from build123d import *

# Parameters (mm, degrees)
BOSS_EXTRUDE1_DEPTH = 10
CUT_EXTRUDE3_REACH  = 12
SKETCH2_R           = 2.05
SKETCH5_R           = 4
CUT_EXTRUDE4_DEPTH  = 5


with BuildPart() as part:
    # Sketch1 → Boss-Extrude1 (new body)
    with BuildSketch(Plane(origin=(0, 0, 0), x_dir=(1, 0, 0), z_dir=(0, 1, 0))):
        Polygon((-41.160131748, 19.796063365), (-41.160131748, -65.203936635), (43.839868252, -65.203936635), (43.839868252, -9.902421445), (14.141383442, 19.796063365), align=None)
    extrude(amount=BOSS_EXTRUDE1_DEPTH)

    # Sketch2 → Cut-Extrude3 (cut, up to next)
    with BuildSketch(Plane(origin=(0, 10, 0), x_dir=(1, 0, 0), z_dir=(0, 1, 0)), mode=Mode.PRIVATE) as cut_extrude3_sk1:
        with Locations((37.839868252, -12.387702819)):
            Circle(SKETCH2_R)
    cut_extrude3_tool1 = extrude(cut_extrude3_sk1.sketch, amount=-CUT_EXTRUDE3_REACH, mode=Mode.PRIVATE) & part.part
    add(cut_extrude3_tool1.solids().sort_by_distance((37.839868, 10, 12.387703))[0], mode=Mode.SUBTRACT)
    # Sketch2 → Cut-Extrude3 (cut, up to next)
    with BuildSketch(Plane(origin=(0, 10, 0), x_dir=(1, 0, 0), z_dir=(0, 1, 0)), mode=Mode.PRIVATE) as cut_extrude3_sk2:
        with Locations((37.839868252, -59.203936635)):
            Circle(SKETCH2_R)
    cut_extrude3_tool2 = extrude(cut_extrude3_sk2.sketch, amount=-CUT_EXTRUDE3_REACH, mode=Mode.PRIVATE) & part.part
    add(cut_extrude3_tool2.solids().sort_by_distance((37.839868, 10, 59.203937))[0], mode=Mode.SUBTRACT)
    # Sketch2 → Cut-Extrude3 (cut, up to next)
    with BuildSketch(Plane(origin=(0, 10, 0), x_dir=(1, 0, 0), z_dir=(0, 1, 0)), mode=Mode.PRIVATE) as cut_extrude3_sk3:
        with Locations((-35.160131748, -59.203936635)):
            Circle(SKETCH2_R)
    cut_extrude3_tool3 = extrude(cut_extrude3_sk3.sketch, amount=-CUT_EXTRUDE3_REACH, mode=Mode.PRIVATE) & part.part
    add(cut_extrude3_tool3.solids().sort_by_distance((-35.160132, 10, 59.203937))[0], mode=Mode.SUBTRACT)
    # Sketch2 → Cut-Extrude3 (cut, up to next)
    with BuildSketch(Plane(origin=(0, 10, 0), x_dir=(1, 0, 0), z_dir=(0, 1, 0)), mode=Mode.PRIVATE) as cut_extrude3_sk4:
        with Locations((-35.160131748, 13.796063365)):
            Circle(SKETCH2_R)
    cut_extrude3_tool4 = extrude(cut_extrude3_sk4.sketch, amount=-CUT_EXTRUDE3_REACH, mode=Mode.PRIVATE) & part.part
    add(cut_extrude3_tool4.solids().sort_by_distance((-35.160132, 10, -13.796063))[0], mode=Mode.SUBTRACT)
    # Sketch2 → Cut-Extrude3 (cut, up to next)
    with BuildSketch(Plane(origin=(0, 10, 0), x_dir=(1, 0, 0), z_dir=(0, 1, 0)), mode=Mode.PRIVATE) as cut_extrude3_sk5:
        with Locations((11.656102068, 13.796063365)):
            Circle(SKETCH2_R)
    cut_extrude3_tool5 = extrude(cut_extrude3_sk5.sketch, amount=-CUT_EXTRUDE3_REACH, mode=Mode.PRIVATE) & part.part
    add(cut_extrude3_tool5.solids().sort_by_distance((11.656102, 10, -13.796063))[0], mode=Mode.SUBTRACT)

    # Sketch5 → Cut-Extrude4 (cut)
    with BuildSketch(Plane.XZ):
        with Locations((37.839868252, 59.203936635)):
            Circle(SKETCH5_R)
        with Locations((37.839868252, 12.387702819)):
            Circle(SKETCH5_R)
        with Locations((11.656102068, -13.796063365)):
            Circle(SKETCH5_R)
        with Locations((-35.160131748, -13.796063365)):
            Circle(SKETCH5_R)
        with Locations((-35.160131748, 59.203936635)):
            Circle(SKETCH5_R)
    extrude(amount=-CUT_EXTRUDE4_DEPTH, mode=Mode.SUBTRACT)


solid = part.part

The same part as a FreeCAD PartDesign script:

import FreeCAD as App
import Part
import Sketcher
from FreeCAD import Vector


def add_polygon(sketch, points):
    """Adds a closed chain of lines whose ends are joined by coincident constraints."""
    first, n = sketch.GeometryCount, len(points)
    for a, b in zip(points, points[1:] + points[:1]):
        sketch.addGeometry(Part.LineSegment(App.Vector(*a, 0), App.Vector(*b, 0)), False)
    for i in range(n):
        sketch.addConstraint(Sketcher.Constraint("Coincident", first + i, 2, first + (i + 1) % n, 1))

doc = App.newDocument("Part")
params = doc.addObject("Spreadsheet::Sheet", "Params")
for row, (alias, value) in enumerate([
    ("sketch1_width", "85 mm"),
    ("sketch1_length", "42 mm"),
    ("pad1_length", "10 mm"),
    ("sketch2_diameter", "4.1 mm"),
    ("sketch3_diameter", "4.1 mm"),
    ("sketch4_diameter", "4.1 mm"),
    ("sketch5_diameter", "4.1 mm"),
    ("sketch6_diameter", "4.1 mm"),
    ("sketch7_diameter", "8 mm"),
    ("pocket6_length", "5 mm"),
], start=1):
    params.set(f"A{row}", alias)
    params.set(f"B{row}", "=" + value)
    params.setAlias(f"B{row}", alias)

body = doc.addObject("PartDesign::Body", "Body")

sketch1 = body.newObject("Sketcher::SketchObject", "Sketch")
sketch1.AttachmentSupport = (doc.getObject("XZ_Plane"), [""])
sketch1.MapMode = "FlatFace"
add_polygon(sketch1, [(-41.160132, -19.796063), (-41.160132, 65.203937), (43.839868, 65.203937), (43.839868, 9.902421), (14.141383, -19.796063)])
sketch1.addConstraint(Sketcher.Constraint("Vertical", 0))
sketch1.addConstraint(Sketcher.Constraint("Horizontal", 1))
sketch1.addConstraint(Sketcher.Constraint("Vertical", 2))
sketch1.addConstraint(Sketcher.Constraint("Horizontal", 4))
sketch1.addConstraint(Sketcher.Constraint("Equal", 1, 0))
sketch1.addConstraint(Sketcher.Constraint("Equal", 4, 2))
sketch1.addConstraint(Sketcher.Constraint("DistanceX", 1, 1, 1, 2, 85.0))
sketch1.addConstraint(Sketcher.Constraint("Distance", 3, 42.0))
sketch1.addConstraint(Sketcher.Constraint("DistanceX", 0, 2, -1, 1, 41.160132))
sketch1.addConstraint(Sketcher.Constraint("DistanceY", -1, 1, 2, 2, 9.902421))
sketch1.setExpression("Constraints[11]", "Params.sketch1_width")
sketch1.setExpression("Constraints[12]", "Params.sketch1_length")
pad1 = body.newObject("PartDesign::Pad", "Pad")
pad1.Profile = sketch1
pad1.setExpression("Length", "Params.pad1_length")
pad1.Reversed = True

sketch2 = body.newObject("Sketcher::SketchObject", "Sketch001")
sketch2.AttachmentSupport = (doc.getObject("XZ_Plane"), [""])
sketch2.MapMode = "FlatFace"
sketch2.AttachmentOffset = App.Placement(Vector(0, 0, -10), App.Rotation())
sketch2.addGeometry(Part.Circle(Vector(37.839868, 12.387703, 0), Vector(0, 0, 1), 2.05), False)
sketch2.addConstraint(Sketcher.Constraint("Diameter", 0, 4.1))
sketch2.addConstraint(Sketcher.Constraint("DistanceX", -1, 1, 0, 3, 37.839868))
sketch2.addConstraint(Sketcher.Constraint("DistanceY", -1, 1, 0, 3, 12.387703))
sketch2.setExpression("Constraints[0]", "Params.sketch2_diameter")
pocket1 = body.newObject("PartDesign::Pocket", "Pocket")
pocket1.Profile = sketch2
pocket1.Type = "UpToFirst"
pocket1.Reversed = True

sketch3 = body.newObject("Sketcher::SketchObject", "Sketch002")
sketch3.AttachmentSupport = (doc.getObject("XZ_Plane"), [""])
sketch3.MapMode = "FlatFace"
sketch3.AttachmentOffset = App.Placement(Vector(0, 0, -10), App.Rotation())
sketch3.addGeometry(Part.Circle(Vector(37.839868, 59.203937, 0), Vector(0, 0, 1), 2.05), False)
sketch3.addConstraint(Sketcher.Constraint("Diameter", 0, 4.1))
sketch3.addConstraint(Sketcher.Constraint("DistanceX", -1, 1, 0, 3, 37.839868))
sketch3.addConstraint(Sketcher.Constraint("DistanceY", -1, 1, 0, 3, 59.203937))
sketch3.setExpression("Constraints[0]", "Params.sketch3_diameter")
pocket2 = body.newObject("PartDesign::Pocket", "Pocket001")
pocket2.Profile = sketch3
pocket2.Type = "UpToFirst"
pocket2.Reversed = True

sketch4 = body.newObject("Sketcher::SketchObject", "Sketch003")
sketch4.AttachmentSupport = (doc.getObject("XZ_Plane"), [""])
sketch4.MapMode = "FlatFace"
sketch4.AttachmentOffset = App.Placement(Vector(0, 0, -10), App.Rotation())
sketch4.addGeometry(Part.Circle(Vector(-35.160132, 59.203937, 0), Vector(0, 0, 1), 2.05), False)
sketch4.addConstraint(Sketcher.Constraint("Diameter", 0, 4.1))
sketch4.addConstraint(Sketcher.Constraint("DistanceX", 0, 3, -1, 1, 35.160132))
sketch4.addConstraint(Sketcher.Constraint("DistanceY", -1, 1, 0, 3, 59.203937))
sketch4.setExpression("Constraints[0]", "Params.sketch4_diameter")
pocket3 = body.newObject("PartDesign::Pocket", "Pocket002")
pocket3.Profile = sketch4
pocket3.Type = "UpToFirst"
pocket3.Reversed = True

sketch5 = body.newObject("Sketcher::SketchObject", "Sketch004")
sketch5.AttachmentSupport = (doc.getObject("XZ_Plane"), [""])
sketch5.MapMode = "FlatFace"
sketch5.AttachmentOffset = App.Placement(Vector(0, 0, -10), App.Rotation())
sketch5.addGeometry(Part.Circle(Vector(-35.160132, -13.796063, 0), Vector(0, 0, 1), 2.05), False)
sketch5.addConstraint(Sketcher.Constraint("Diameter", 0, 4.1))
sketch5.addConstraint(Sketcher.Constraint("DistanceX", 0, 3, -1, 1, 35.160132))
sketch5.addConstraint(Sketcher.Constraint("DistanceY", 0, 3, -1, 1, 13.796063))
sketch5.setExpression("Constraints[0]", "Params.sketch5_diameter")
pocket4 = body.newObject("PartDesign::Pocket", "Pocket003")
pocket4.Profile = sketch5
pocket4.Type = "UpToFirst"
pocket4.Reversed = True

sketch6 = body.newObject("Sketcher::SketchObject", "Sketch005")
sketch6.AttachmentSupport = (doc.getObject("XZ_Plane"), [""])
sketch6.MapMode = "FlatFace"
sketch6.AttachmentOffset = App.Placement(Vector(0, 0, -10), App.Rotation())
sketch6.addGeometry(Part.Circle(Vector(11.656102, -13.796063, 0), Vector(0, 0, 1), 2.05), False)
sketch6.addConstraint(Sketcher.Constraint("Diameter", 0, 4.1))
sketch6.addConstraint(Sketcher.Constraint("DistanceX", -1, 1, 0, 3, 11.656102))
sketch6.addConstraint(Sketcher.Constraint("DistanceY", 0, 3, -1, 1, 13.796063))
sketch6.setExpression("Constraints[0]", "Params.sketch6_diameter")
pocket5 = body.newObject("PartDesign::Pocket", "Pocket004")
pocket5.Profile = sketch6
pocket5.Type = "UpToFirst"
pocket5.Reversed = True

sketch7 = body.newObject("Sketcher::SketchObject", "Sketch006")
sketch7.AttachmentSupport = (doc.getObject("XZ_Plane"), [""])
sketch7.MapMode = "FlatFace"
sketch7.addGeometry(Part.Circle(Vector(37.839868, 59.203937, 0), Vector(0, 0, 1), 4), False)
sketch7.addGeometry(Part.Circle(Vector(37.839868, 12.387703, 0), Vector(0, 0, 1), 4), False)
sketch7.addGeometry(Part.Circle(Vector(11.656102, -13.796063, 0), Vector(0, 0, 1), 4), False)
sketch7.addGeometry(Part.Circle(Vector(-35.160132, -13.796063, 0), Vector(0, 0, 1), 4), False)
sketch7.addGeometry(Part.Circle(Vector(-35.160132, 59.203937, 0), Vector(0, 0, 1), 4), False)
sketch7.addConstraint(Sketcher.Constraint("Equal", 0, 1))
sketch7.addConstraint(Sketcher.Constraint("Equal", 1, 2))
sketch7.addConstraint(Sketcher.Constraint("Equal", 2, 3))
sketch7.addConstraint(Sketcher.Constraint("Equal", 3, 4))
sketch7.addConstraint(Sketcher.Constraint("Horizontal", 2, 3, 3, 3))
sketch7.addConstraint(Sketcher.Constraint("Horizontal", 0, 3, 4, 3))
sketch7.addConstraint(Sketcher.Constraint("Vertical", 0, 3, 1, 3))
sketch7.addConstraint(Sketcher.Constraint("Vertical", 3, 3, 4, 3))
sketch7.addConstraint(Sketcher.Constraint("Diameter", 0, 8.0))
sketch7.addConstraint(Sketcher.Constraint("DistanceY", 2, 3, 0, 3, 73.0))
sketch7.addConstraint(Sketcher.Constraint("DistanceX", 3, 3, 1, 3, 73.0))
sketch7.addConstraint(Sketcher.Constraint("DistanceX", -1, 1, 0, 3, 37.839868))
sketch7.addConstraint(Sketcher.Constraint("DistanceY", -1, 1, 0, 3, 59.203937))
sketch7.addConstraint(Sketcher.Constraint("DistanceY", -1, 1, 1, 3, 12.387703))
sketch7.addConstraint(Sketcher.Constraint("DistanceX", -1, 1, 2, 3, 11.656102))
sketch7.setExpression("Constraints[8]", "Params.sketch7_diameter")
pocket6 = body.newObject("PartDesign::Pocket", "Pocket005")
pocket6.Profile = sketch7
pocket6.setExpression("Length", "Params.pocket6_length")

doc.recompute()
